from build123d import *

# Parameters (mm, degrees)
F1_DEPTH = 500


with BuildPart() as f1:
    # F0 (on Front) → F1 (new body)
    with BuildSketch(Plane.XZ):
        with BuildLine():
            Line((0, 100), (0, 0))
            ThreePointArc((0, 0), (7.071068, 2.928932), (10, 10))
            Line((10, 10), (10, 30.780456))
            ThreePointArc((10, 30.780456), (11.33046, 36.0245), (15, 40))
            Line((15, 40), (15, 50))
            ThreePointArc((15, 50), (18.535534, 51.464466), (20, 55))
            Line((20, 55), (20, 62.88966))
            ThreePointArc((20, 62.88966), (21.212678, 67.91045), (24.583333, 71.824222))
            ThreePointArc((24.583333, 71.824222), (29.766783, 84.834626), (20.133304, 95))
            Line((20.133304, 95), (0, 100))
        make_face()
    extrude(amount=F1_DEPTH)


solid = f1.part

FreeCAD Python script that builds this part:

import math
import FreeCAD as App
import Part
import Sketcher
from FreeCAD import Vector
Q = App.Units.Quantity

doc = App.newDocument("Part")
params = doc.addObject("Spreadsheet::Sheet", "Params")
for row, (alias, value) in enumerate([
    ("sketch1_radius", "9.999999 mm"),
    ("sketch1_radius2", "5 mm"),
    ("sketch1_radius3", "11.000001 mm"),
    ("sketch1_radius4", "13 mm"),
    ("sketch1_height", "100 mm"),
    ("pad1_length", "500 mm"),
], start=1):
    params.set(f"A{row}", alias)
    params.set(f"B{row}", "=" + value)
    params.setAlias(f"B{row}", alias)

body = doc.addObject("PartDesign::Body", "Body")

sketch1 = body.newObject("Sketcher::SketchObject", "Sketch")
sketch1.AttachmentSupport = (doc.getObject("XZ_Plane"), [""])
sketch1.MapMode = "FlatFace"
sketch1.addGeometry(Part.LineSegment(Vector(0, 100, 0), Vector(0, 0, 0)), False)
sketch1.addGeometry(Part.ArcOfCircle(Part.Circle(Vector(0, 10, 0), Vector(0, 0, 1), 10), math.radians(-90), math.radians(0)), False)
sketch1.addGeometry(Part.LineSegment(Vector(10, 10, 0), Vector(10, 30.8, 0)), False)
sketch1.addGeometry(Part.ArcOfCircle(Part.Circle(Vector(21, 30.8, 0), Vector(0, 0, 1), 11), math.radians(123), math.radians(180)), False)
sketch1.addGeometry(Part.LineSegment(Vector(15, 40, 0), Vector(15, 50, 0)), False)
sketch1.addGeometry(Part.ArcOfCircle(Part.Circle(Vector(15, 55, 0), Vector(0, 0, 1), 5), math.radians(-90), math.radians(0)), False)
sketch1.addGeometry(Part.LineSegment(Vector(20, 55, 0), Vector(20, 62.9, 0)), False)
sketch1.addGeometry(Part.ArcOfCircle(Part.Circle(Vector(31, 62.9, 0), Vector(0, 0, 1), 11), math.radians(126), math.radians(180)), False)
sketch1.addGeometry(Part.ArcOfCircle(Part.Circle(Vector(17, 82.4, 0), Vector(0, 0, 1), 13), math.radians(-54), math.radians(76)), False)
sketch1.addGeometry(Part.LineSegment(Vector(20.1, 95, 0), Vector(0, 100, 0)), False)
sketch1.addConstraint(Sketcher.Constraint("Coincident", 0, 2, 1, 1))
sketch1.addConstraint(Sketcher.Constraint("Tangent", 1, 2, 2, 1))
sketch1.addConstraint(Sketcher.Constraint("Tangent", 2, 2, 3, 2))
sketch1.addConstraint(Sketcher.Constraint("Coincident", 3, 1, 4, 1))
sketch1.addConstraint(Sketcher.Constraint("Coincident", 4, 2, 5, 1))
sketch1.addConstraint(Sketcher.Constraint("Tangent", 5, 2, 6, 1))
sketch1.addConstraint(Sketcher.Constraint("Tangent", 6, 2, 7, 2))
sketch1.addConstraint(Sketcher.Constraint("Tangent", 7, 1, 8, 1))
sketch1.addConstraint(Sketcher.Constraint("Tangent", 8, 2, 9, 1))
sketch1.addConstraint(Sketcher.Constraint("Coincident", 9, 2, 0, 1))
sketch1.addConstraint(Sketcher.Constraint("Vertical", 0))
sketch1.addConstraint(Sketcher.Constraint("Vertical", 2))
sketch1.addConstraint(Sketcher.Constraint("Vertical", 4))
sketch1.addConstraint(Sketcher.Constraint("Vertical", 6))
sketch1.addConstraint(Sketcher.Constraint("Coincident", 0, 2, -1, 1))
sketch1.addConstraint(Sketcher.Constraint("PointOnObject", 1, 3, -2))
sketch1.addConstraint(Sketcher.Constraint("Vertical", 5, 3, 3, 1))
sketch1.addConstraint(Sketcher.Constraint("Radius", 1, Q("9.999999 mm")))
sketch1.addConstraint(Sketcher.Constraint("Radius", 5, Q("5 mm")))
sketch1.addConstraint(Sketcher.Constraint("Radius", 7, Q("11.000001 mm")))
sketch1.addConstraint(Sketcher.Constraint("Radius", 8, Q("13 mm")))
sketch1.addConstraint(Sketcher.Constraint("DistanceY", 0, 2, 0, 1, Q("100 mm")))
sketch1.addConstraint(Sketcher.Constraint("DistanceY", 4, 1, 4, 2, Q("10 mm")))
sketch1.addConstraint(Sketcher.Constraint("DistanceX", -1, 1, 5, 3, Q("15 mm")))
sketch1.addConstraint(Sketcher.Constraint("DistanceY", -1, 1, 5, 3, Q("55 mm")))
sketch1.addConstraint(Sketcher.Constraint("DistanceX", -1, 1, 8, 3, Q("17 mm")))
sketch1.addConstraint(Sketcher.Constraint("DistanceY", -1, 1, 8, 2, Q("95 mm")))
sketch1.addConstraint(Sketcher.Constraint("Radius", 3, Q("10.999998 mm")))
sketch1.setExpression("Constraints[17]", "Params.sketch1_radius")
sketch1.setExpression("Constraints[18]", "Params.sketch1_radius2")
sketch1.setExpression("Constraints[19]", "Params.sketch1_radius3")
sketch1.setExpression("Constraints[20]", "Params.sketch1_radius4")
sketch1.setExpression("Constraints[21]", "Params.sketch1_height")
pad1 = body.newObject("PartDesign::Pad", "Pad")
pad1.Profile = sketch1
pad1.setExpression("Length", "Params.pad1_length")

doc.recompute()
